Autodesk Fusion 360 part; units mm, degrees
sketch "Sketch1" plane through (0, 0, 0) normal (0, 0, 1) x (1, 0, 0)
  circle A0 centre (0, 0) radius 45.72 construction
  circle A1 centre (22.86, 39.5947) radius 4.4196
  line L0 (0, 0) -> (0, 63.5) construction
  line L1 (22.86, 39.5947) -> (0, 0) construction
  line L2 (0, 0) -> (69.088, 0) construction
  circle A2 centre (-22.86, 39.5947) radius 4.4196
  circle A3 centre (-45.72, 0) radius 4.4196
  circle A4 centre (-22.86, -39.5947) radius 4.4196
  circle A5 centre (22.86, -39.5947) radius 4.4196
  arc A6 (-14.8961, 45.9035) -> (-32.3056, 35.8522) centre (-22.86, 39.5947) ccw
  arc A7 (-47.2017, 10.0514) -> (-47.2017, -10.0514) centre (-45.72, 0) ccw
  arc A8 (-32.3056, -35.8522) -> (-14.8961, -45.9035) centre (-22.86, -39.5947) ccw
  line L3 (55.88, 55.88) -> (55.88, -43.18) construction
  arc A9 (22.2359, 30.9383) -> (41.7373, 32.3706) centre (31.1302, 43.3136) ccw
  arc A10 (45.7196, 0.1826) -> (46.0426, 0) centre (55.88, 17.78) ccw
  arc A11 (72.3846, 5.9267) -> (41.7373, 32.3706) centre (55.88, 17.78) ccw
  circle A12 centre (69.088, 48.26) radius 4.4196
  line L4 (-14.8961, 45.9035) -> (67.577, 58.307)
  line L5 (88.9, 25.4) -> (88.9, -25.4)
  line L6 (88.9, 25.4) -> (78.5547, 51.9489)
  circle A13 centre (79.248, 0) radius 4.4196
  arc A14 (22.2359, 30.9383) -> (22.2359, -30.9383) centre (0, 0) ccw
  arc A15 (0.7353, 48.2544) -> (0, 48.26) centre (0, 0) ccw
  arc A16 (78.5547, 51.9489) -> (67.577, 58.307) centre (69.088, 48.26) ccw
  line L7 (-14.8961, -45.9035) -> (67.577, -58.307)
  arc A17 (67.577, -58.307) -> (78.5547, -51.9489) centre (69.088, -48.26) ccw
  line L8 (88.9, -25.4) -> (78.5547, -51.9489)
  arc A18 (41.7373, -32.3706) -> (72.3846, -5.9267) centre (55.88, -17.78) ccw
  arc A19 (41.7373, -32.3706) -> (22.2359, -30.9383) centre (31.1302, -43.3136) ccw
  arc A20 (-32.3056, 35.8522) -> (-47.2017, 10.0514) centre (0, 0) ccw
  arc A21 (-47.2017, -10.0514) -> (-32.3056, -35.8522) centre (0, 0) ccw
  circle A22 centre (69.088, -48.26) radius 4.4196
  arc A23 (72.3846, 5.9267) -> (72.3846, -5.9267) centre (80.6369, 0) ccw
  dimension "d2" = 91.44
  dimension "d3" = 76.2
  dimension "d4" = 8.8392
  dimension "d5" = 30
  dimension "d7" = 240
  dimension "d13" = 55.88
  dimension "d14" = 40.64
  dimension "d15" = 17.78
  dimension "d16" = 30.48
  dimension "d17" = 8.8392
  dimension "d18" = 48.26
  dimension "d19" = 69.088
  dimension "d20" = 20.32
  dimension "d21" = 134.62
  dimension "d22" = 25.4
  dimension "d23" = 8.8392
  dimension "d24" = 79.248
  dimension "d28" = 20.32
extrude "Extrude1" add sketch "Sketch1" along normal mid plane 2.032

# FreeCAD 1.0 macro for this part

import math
import FreeCAD as App
import Part
import Sketcher
Q = App.Units.Quantity

doc = App.newDocument("Part")
body = doc.addObject("PartDesign::Body", "Body")

sketch1 = body.newObject("Sketcher::SketchObject", "Sketch")
sketch1.AttachmentSupport = (doc.getObject("XY_Plane"), [""])
sketch1.MapMode = "FlatFace"
sketch1.addGeometry([
    Part.LineSegment(App.Vector(67.577, 58.307, 0), App.Vector(-14.8961, 45.9035, 0)),
    Part.ArcOfCircle(Part.Circle(App.Vector(-22.86, 39.5947, 0), App.Vector(0, 0, 1), 10.159954), math.radians(38.385374), math.radians(201.614274)),
    Part.ArcOfCircle(Part.Circle(App.Vector(0, 0, 0), App.Vector(0, 0, 1), 48.260002), math.radians(132.021293), math.radians(167.978668)),
    Part.ArcOfCircle(Part.Circle(App.Vector(-45.72, 0, 0), App.Vector(0, 0, 1), 10.160023), math.radians(98.385709), math.radians(261.614291)),
    Part.ArcOfCircle(Part.Circle(App.Vector(0, 0, 0), App.Vector(0, 0, 1), 48.260046), math.radians(-167.978668), math.radians(-132.021293)),
    Part.ArcOfCircle(Part.Circle(App.Vector(-22.86, -39.5947, 0), App.Vector(0, 0, 1), 10.160003), math.radians(158.385726), math.radians(321.614626)),
    Part.LineSegment(App.Vector(-14.8961, -45.9035, 0), App.Vector(67.577, -58.307, 0)),
    Part.ArcOfCircle(Part.Circle(App.Vector(69.088, -48.26, 0), App.Vector(0, 0, 1), 10.159987), math.radians(-98.552795), math.radians(-21.289428)),
    Part.LineSegment(App.Vector(78.5547, -51.9489, 0), App.Vector(88.9, -25.4, 0)),
    Part.LineSegment(App.Vector(88.9, -25.4, 0), App.Vector(88.9, 25.4, 0)),
    Part.LineSegment(App.Vector(88.9, 25.4, 0), App.Vector(78.5547, 51.9489, 0)),
    Part.ArcOfCircle(Part.Circle(App.Vector(69.088, 48.26, 0), App.Vector(0, 0, 1), 10.160039), math.radians(21.289428), math.radians(98.552795)),
    Part.Circle(App.Vector(-22.86, -39.5947, 0), App.Vector(0, 0, 1), 4.4196),
    Part.Circle(App.Vector(-45.72, 0, 0), App.Vector(0, 0, 1), 4.4196),
    Part.Circle(App.Vector(22.86, -39.5947, 0), App.Vector(0, 0, 1), 4.4196),
    Part.Circle(App.Vector(69.088, -48.26, 0), App.Vector(0, 0, 1), 4.4196),
    Part.ArcOfCircle(Part.Circle(App.Vector(0, 0, 0), App.Vector(0, 0, 1), 38.100048), math.radians(54.294534), math.radians(305.705466)),
    Part.ArcOfCircle(Part.Circle(App.Vector(31.1302, 43.3136, 0), App.Vector(0, 0, 1), 15.239968), math.radians(-125.705327), math.radians(-45.892993)),
    Part.ArcOfCircle(Part.Circle(App.Vector(55.88, 17.78, 0), App.Vector(0, 0, 1), 20.319995), math.radians(-35.685212), math.radians(134.106935)),
    Part.ArcOfCircle(Part.Circle(App.Vector(80.6369, 0, 0), App.Vector(0, 0, 1), 10.160031), math.radians(144.314559), math.radians(215.685441)),
    Part.ArcOfCircle(Part.Circle(App.Vector(55.88, -17.78, 0), App.Vector(0, 0, 1), 20.31998), math.radians(-134.106935), math.radians(35.685212)),
    Part.ArcOfCircle(Part.Circle(App.Vector(31.1302, -43.3136, 0), App.Vector(0, 0, 1), 15.240073), math.radians(45.892993), math.radians(125.705327)),
    Part.Circle(App.Vector(79.248, 0, 0), App.Vector(0, 0, 1), 4.4196),
    Part.Circle(App.Vector(-22.86, 39.5947, 0), App.Vector(0, 0, 1), 4.4196),
    Part.Circle(App.Vector(22.86, 39.5947, 0), App.Vector(0, 0, 1), 4.4196),
    Part.Circle(App.Vector(69.088, 48.26, 0), App.Vector(0, 0, 1), 4.4196),
], False)
sketch1.addConstraint([
    Sketcher.Constraint("Coincident", 0, 2, 1, 1),
    Sketcher.Constraint("Coincident", 1, 2, 2, 1),
    Sketcher.Constraint("Coincident", 2, 2, 3, 1),
    Sketcher.Constraint("Coincident", 3, 2, 4, 1),
    Sketcher.Constraint("Coincident", 4, 2, 5, 1),
    Sketcher.Constraint("Coincident", 5, 2, 6, 1),
    Sketcher.Constraint("Coincident", 6, 2, 7, 1),
    Sketcher.Constraint("Coincident", 7, 2, 8, 1),
    Sketcher.Constraint("Coincident", 8, 2, 9, 1),
    Sketcher.Constraint("Coincident", 9, 2, 10, 1),
    Sketcher.Constraint("Coincident", 10, 2, 11, 1),
    Sketcher.Constraint("Coincident", 11, 2, 0, 1),
    Sketcher.Constraint("Coincident", 16, 1, 17, 1),
    Sketcher.Constraint("Coincident", 17, 2, 18, 2),
    Sketcher.Constraint("Coincident", 18, 1, 19, 1),
    Sketcher.Constraint("Coincident", 19, 2, 20, 2),
    Sketcher.Constraint("Coincident", 20, 1, 21, 1),
    Sketcher.Constraint("Coincident", 21, 2, 16, 2),
    Sketcher.Constraint("Vertical", 9),
    Sketcher.Constraint("Coincident", 2, 3, -1, 1),
    Sketcher.Constraint("Coincident", 4, 3, -1, 1),
    Sketcher.Constraint("Coincident", 16, 3, -1, 1),
    Sketcher.Constraint("Coincident", 12, 3, 5, 3),
    Sketcher.Constraint("Coincident", 13, 3, 3, 3),
    Sketcher.Constraint("Coincident", 15, 3, 7, 3),
    Sketcher.Constraint("Coincident", 23, 3, 1, 3),
    Sketcher.Constraint("Coincident", 25, 3, 11, 3),
    Sketcher.Constraint("PointOnObject", 3, 3, -1),
    Sketcher.Constraint("PointOnObject", 19, 3, -1),
    Sketcher.Constraint("PointOnObject", 22, 3, -1),
    Sketcher.Constraint("Radius", 1, Q("0.4 in")),
    Sketcher.Constraint("Radius", 2, Q("1.9 in")),
    Sketcher.Constraint("Radius", 3, Q("0.4 in")),
    Sketcher.Constraint("Radius", 4, Q("1.9 in")),
    Sketcher.Constraint("Radius", 5, Q("0.4 in")),
    Sketcher.Constraint("Radius", 7, Q("0.4 in")),
    Sketcher.Constraint("Radius", 11, Q("0.4 in")),
    Sketcher.Constraint("Radius", 16, Q("1.5 in")),
    Sketcher.Constraint("Radius", 17, Q("0.6 in")),
    Sketcher.Constraint("Radius", 18, Q("0.8 in")),
    Sketcher.Constraint("Radius", 19, Q("0.4 in")),
    Sketcher.Constraint("Radius", 20, Q("0.8 in")),
    Sketcher.Constraint("Radius", 21, Q("0.6 in")),
    Sketcher.Constraint("Diameter", 12, Q("0.348 in")),
    Sketcher.Constraint("Diameter", 13, Q("0.348 in")),
    Sketcher.Constraint("Diameter", 14, Q("0.348 in")),
    Sketcher.Constraint("Diameter", 15, Q("0.348 in")),
    Sketcher.Constraint("Diameter", 22, Q("0.348 in")),
    Sketcher.Constraint("Diameter", 23, Q("0.348 in")),
    Sketcher.Constraint("Diameter", 24, Q("0.348 in")),
    Sketcher.Constraint("Diameter", 25, Q("0.348 in")),
    Sketcher.Constraint("DistanceY", 8, 2, -1, 1, Q("1 in")),
    Sketcher.Constraint("DistanceY", -1, 1, 9, 2, Q("1 in")),
    Sketcher.Constraint("DistanceY", 7, 3, -1, 1, Q("1.9 in")),
    Sketcher.Constraint("DistanceY", -1, 1, 11, 3, Q("1.9 in")),
    Sketcher.Constraint("DistanceX", -1, 1, 18, 3, Q("2.2 in")),
    Sketcher.Constraint("DistanceY", -1, 1, 18, 3, Q("0.7 in")),
    Sketcher.Constraint("DistanceX", -1, 1, 20, 3, Q("2.2 in")),
    Sketcher.Constraint("DistanceX", -1, 1, 7, 3, Q("2.72 in")),
    Sketcher.Constraint("DistanceX", -1, 1, 11, 3, Q("2.72 in")),
    Sketcher.Constraint("DistanceX", -1, 1, 22, 3, Q("3.12 in")),
    Sketcher.Constraint("DistanceX", 1, 3, -1, 1, Q("0.9 in")),
    Sketcher.Constraint("DistanceX", 3, 3, -1, 1, Q("1.8 in")),
    Sketcher.Constraint("DistanceX", 5, 3, -1, 1, Q("0.9 in")),
    Sketcher.Constraint("DistanceX", -1, 1, 14, 3, Q("0.9 in")),
    Sketcher.Constraint("DistanceX", -1, 1, 24, 3, Q("0.9 in")),
    Sketcher.Constraint("DistanceX", -1, 1, 8, 2, Q("3.5 in")),
    Sketcher.Constraint("DistanceY", -1, 1, 1, 2, Q("1.4115 in")),
    Sketcher.Constraint("DistanceY", 4, 2, -1, 1, Q("1.4115 in")),
    Sketcher.Constraint("DistanceX", -1, 1, 6, 2, Q("2.6605 in")),
    Sketcher.Constraint("DistanceX", -1, 1, 7, 2, Q("3.0927 in")),
    Sketcher.Constraint("DistanceX", -1, 1, 10, 2, Q("3.0927 in")),
    Sketcher.Constraint("DistanceX", -1, 1, 11, 2, Q("2.6605 in")),
    Sketcher.Constraint("DistanceX", -1, 1, 17, 2, Q("1.6432 in")),
    Sketcher.Constraint("DistanceX", -1, 1, 20, 1, Q("1.6432 in")),
    Sketcher.Constraint("DistanceX", 1, 2, 0, 2, Q("0.6854 in")),
    Sketcher.Constraint("DistanceY", 6, 2, 14, 3, Q("0.7367 in")),
    Sketcher.Constraint("DistanceY", 16, 1, 24, 3, Q("0.3408 in")),
    Sketcher.Constraint("DistanceY", 16, 1, 17, 2, Q("0.0564 in")),
    Sketcher.Constraint("DistanceX", 18, 1, 19, 3, Q("0.3249 in")),
    Sketcher.Constraint("DistanceX", 19, 2, 19, 3, Q("0.3249 in")),
    Sketcher.Constraint("DistanceY", 14, 3, 21, 2, Q("0.3408 in")),
    Sketcher.Constraint("Distance", 6, Q("3.2834882 in")),
])
pad1 = body.newObject("PartDesign::Pad", "Pad")
pad1.Profile = sketch1
pad1.Length = Q("0.08 in")
pad1.Midplane = True

doc.recompute()
